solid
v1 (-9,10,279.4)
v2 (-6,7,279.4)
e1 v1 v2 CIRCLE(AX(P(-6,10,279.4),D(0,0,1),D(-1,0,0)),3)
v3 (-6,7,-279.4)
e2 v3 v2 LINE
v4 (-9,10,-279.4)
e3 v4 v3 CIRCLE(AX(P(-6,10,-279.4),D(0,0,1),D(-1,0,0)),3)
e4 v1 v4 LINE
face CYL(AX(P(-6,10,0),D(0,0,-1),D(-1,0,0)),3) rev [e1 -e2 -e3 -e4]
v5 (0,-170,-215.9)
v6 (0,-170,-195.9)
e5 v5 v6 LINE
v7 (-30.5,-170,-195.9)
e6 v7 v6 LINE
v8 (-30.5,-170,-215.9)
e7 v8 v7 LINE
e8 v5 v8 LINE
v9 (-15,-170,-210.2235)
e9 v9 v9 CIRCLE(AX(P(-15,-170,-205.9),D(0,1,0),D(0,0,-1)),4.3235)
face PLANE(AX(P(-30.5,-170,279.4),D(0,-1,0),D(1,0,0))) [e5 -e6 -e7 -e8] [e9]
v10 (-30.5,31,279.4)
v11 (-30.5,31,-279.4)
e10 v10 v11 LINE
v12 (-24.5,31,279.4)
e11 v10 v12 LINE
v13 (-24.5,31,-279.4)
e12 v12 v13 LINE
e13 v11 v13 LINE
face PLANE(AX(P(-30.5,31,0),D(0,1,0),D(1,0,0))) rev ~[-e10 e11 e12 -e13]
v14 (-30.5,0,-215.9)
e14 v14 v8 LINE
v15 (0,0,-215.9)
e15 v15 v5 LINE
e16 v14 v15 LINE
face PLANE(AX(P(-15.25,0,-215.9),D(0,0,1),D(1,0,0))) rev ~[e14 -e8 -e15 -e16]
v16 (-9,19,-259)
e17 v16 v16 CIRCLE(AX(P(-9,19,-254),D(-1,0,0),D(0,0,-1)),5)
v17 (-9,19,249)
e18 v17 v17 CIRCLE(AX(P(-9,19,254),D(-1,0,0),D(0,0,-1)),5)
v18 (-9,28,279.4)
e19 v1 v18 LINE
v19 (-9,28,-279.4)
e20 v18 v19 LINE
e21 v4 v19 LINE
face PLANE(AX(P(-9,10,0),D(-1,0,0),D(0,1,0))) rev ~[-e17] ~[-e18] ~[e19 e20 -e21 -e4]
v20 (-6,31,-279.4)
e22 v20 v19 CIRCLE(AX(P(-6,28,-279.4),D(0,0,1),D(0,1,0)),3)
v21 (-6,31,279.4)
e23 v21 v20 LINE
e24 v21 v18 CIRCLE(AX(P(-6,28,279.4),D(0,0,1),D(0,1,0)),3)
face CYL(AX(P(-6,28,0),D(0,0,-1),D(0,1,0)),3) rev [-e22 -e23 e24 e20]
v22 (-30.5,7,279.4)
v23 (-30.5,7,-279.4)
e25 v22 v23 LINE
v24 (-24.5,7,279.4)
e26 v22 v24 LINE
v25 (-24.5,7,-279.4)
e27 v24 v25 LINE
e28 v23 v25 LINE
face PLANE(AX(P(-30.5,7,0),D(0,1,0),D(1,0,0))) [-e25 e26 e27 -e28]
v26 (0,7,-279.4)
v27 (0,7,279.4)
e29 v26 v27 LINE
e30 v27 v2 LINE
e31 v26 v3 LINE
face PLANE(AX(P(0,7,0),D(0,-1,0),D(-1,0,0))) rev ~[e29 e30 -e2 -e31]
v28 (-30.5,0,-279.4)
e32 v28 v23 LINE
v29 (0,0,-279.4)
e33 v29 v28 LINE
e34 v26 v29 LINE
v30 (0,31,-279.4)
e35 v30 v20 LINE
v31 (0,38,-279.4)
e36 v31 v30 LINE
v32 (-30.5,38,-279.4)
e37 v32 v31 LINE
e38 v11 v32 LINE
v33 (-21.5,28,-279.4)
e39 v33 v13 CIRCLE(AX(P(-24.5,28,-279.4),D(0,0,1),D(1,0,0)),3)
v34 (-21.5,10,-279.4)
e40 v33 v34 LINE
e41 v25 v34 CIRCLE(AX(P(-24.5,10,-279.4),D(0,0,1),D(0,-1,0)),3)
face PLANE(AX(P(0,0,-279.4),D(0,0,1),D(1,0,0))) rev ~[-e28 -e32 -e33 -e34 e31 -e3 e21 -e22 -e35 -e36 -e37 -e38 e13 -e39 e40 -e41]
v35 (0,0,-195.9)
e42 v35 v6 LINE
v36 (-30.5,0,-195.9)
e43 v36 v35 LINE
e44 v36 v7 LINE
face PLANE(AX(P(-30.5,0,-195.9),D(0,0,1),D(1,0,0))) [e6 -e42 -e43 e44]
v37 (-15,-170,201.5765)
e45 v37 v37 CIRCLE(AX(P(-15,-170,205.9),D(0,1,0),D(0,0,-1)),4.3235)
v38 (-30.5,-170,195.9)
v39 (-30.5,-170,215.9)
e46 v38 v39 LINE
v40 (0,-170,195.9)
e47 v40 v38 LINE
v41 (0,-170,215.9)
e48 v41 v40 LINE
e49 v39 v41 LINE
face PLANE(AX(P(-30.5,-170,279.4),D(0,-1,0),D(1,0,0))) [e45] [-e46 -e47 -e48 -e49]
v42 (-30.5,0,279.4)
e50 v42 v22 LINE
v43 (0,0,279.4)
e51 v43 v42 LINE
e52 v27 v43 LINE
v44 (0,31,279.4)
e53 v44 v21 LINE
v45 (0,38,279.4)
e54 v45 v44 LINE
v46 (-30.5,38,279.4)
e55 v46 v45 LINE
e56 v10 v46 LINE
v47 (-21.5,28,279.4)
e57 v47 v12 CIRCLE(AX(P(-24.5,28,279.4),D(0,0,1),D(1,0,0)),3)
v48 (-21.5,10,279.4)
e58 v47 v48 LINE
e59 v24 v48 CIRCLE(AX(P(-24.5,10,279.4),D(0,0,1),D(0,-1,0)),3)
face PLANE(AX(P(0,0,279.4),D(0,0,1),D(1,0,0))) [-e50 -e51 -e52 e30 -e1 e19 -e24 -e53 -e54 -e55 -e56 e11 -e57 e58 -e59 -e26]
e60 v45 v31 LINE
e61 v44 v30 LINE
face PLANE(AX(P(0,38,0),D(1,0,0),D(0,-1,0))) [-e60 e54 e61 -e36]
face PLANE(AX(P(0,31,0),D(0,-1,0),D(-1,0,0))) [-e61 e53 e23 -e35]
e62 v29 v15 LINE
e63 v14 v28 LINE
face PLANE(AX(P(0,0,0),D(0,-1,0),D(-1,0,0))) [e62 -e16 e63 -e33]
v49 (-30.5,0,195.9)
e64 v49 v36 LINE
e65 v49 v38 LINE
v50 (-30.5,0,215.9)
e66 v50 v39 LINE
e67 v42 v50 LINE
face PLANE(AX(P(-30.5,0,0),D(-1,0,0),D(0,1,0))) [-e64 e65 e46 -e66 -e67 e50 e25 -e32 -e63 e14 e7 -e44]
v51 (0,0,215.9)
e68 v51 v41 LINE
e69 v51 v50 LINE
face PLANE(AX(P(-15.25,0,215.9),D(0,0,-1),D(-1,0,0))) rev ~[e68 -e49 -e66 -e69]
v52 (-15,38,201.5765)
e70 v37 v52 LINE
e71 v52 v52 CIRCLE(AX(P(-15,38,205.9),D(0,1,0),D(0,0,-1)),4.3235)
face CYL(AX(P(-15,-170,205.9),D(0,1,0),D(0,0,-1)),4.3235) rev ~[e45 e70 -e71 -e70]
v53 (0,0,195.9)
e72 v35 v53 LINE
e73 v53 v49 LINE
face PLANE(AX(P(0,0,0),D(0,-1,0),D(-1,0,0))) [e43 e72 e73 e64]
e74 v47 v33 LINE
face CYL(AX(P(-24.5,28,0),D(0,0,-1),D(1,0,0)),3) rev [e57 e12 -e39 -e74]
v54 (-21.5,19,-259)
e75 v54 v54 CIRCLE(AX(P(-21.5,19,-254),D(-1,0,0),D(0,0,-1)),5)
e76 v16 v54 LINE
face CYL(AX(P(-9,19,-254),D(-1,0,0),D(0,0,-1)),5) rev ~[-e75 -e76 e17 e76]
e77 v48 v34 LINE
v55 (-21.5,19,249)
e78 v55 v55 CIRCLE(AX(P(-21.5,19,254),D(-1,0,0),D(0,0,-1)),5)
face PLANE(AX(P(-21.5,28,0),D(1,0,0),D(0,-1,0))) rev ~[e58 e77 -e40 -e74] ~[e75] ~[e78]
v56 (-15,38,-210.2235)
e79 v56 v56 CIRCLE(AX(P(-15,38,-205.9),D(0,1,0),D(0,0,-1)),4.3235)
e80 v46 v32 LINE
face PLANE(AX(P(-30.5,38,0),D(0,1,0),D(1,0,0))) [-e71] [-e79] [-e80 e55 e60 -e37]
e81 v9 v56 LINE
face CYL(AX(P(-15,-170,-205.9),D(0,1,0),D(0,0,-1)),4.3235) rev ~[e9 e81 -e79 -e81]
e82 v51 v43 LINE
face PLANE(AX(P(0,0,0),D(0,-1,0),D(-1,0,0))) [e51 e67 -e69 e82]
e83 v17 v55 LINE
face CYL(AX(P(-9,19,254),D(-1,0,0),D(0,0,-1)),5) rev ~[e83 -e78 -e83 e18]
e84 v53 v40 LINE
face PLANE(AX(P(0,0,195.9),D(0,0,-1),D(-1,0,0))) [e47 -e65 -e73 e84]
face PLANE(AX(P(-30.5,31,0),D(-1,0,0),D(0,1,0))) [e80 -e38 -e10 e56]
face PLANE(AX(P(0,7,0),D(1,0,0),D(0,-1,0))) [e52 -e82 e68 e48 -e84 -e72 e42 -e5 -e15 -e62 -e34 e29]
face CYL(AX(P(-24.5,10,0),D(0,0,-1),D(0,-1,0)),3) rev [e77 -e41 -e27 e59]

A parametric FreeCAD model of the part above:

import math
import FreeCAD as App
import Part
import Sketcher
Q = App.Units.Quantity


def add_polygon(sketch, points):
    """Adds a closed chain of lines whose ends are joined by coincident constraints."""
    first, n = sketch.GeometryCount, len(points)
    for a, b in zip(points, points[1:] + points[:1]):
        sketch.addGeometry(Part.LineSegment(App.Vector(*a, 0), App.Vector(*b, 0)), False)
    for i in range(n):
        sketch.addConstraint(Sketcher.Constraint("Coincident", first + i, 2, first + (i + 1) % n, 1))

doc = App.newDocument("Part")
params = doc.addObject("Spreadsheet::Sheet", "Params")
for row, (alias, value) in enumerate([
    ("sketch1_radius", "3 mm"),
    ("sketch1_height", "7 mm"),
    ("sketch1_width", "30.5 mm"),
    ("pad1_length", "558.8 mm"),
    ("sketch2_diameter", "10 mm"),
    ("hole_diameter", "10 mm"),
    ("hole_depth", "25 mm"),
    ("sketch3_diameter", "10 mm"),
    ("hole2_diameter", "10 mm"),
    ("hole2_depth", "25 mm"),
    ("sketch4_height", "20 mm"),
    ("sketch4_width", "30.5 mm"),
    ("pad2_length", "170 mm"),
    ("hole3_diameter", "8.647 mm"),
    ("hole4_diameter", "8.647 mm"),
], start=1):
    params.set(f"A{row}", alias)
    params.set(f"B{row}", "=" + value)
    params.setAlias(f"B{row}", alias)

body = doc.addObject("PartDesign::Body", "Body")

sketch1 = doc.addObject("Sketcher::SketchObject", "Sketch")
body.addObject(sketch1)
sketch1.AttachmentSupport = (doc.XY_Plane, [""])
sketch1.MapMode = "FlatFace"
sketch1.addGeometry([
    Part.LineSegment(App.Vector(-30.5, 0, 0), App.Vector(0, 0, 0)),
    Part.LineSegment(App.Vector(0, 0, 0), App.Vector(0, 7, 0)),
    Part.LineSegment(App.Vector(0, 7, 0), App.Vector(-6, 7, 0)),
    Part.ArcOfCircle(Part.Circle(App.Vector(-6, 10, 0), App.Vector(0, 0, 1), 3), math.radians(180), math.radians(270)),
    Part.LineSegment(App.Vector(-9, 10, 0), App.Vector(-9, 28, 0)),
    Part.ArcOfCircle(Part.Circle(App.Vector(-6, 28, 0), App.Vector(0, 0, 1), 3), math.radians(90), math.radians(180)),
    Part.LineSegment(App.Vector(-6, 31, 0), App.Vector(0, 31, 0)),
    Part.LineSegment(App.Vector(0, 31, 0), App.Vector(0, 38, 0)),
    Part.LineSegment(App.Vector(0, 38, 0), App.Vector(-30.5, 38, 0)),
    Part.LineSegment(App.Vector(-30.5, 38, 0), App.Vector(-30.5, 31, 0)),
    Part.LineSegment(App.Vector(-30.5, 31, 0), App.Vector(-24.5, 31, 0)),
    Part.ArcOfCircle(Part.Circle(App.Vector(-24.5, 28, 0), App.Vector(0, 0, 1), 3), math.radians(0), math.radians(90)),
    Part.LineSegment(App.Vector(-21.5, 28, 0), App.Vector(-21.5, 10, 0)),
    Part.ArcOfCircle(Part.Circle(App.Vector(-24.5, 10, 0), App.Vector(0, 0, 1), 3), math.radians(-90), math.radians(0)),
    Part.LineSegment(App.Vector(-24.5, 7, 0), App.Vector(-30.5, 7, 0)),
    Part.LineSegment(App.Vector(-30.5, 7, 0), App.Vector(-30.5, 0, 0)),
], False)
sketch1.addConstraint([
    Sketcher.Constraint("Coincident", 0, 2, 1, 1),
    Sketcher.Constraint("Coincident", 1, 2, 2, 1),
    Sketcher.Constraint("Tangent", 2, 2, 3, 2),
    Sketcher.Constraint("Tangent", 3, 1, 4, 1),
    Sketcher.Constraint("Tangent", 4, 2, 5, 2),
    Sketcher.Constraint("Tangent", 5, 1, 6, 1),
    Sketcher.Constraint("Coincident", 6, 2, 7, 1),
    Sketcher.Constraint("Coincident", 7, 2, 8, 1),
    Sketcher.Constraint("Coincident", 8, 2, 9, 1),
    Sketcher.Constraint("Coincident", 9, 2, 10, 1),
    Sketcher.Constraint("Tangent", 10, 2, 11, 2),
    Sketcher.Constraint("Tangent", 11, 1, 12, 1),
    Sketcher.Constraint("Tangent", 12, 2, 13, 2),
    Sketcher.Constraint("Tangent", 13, 1, 14, 1),
    Sketcher.Constraint("Coincident", 14, 2, 15, 1),
    Sketcher.Constraint("Coincident", 15, 2, 0, 1),
    Sketcher.Constraint("Horizontal", 0),
    Sketcher.Constraint("Vertical", 1),
    Sketcher.Constraint("Horizontal", 2),
    Sketcher.Constraint("Vertical", 4),
    Sketcher.Constraint("Horizontal", 6),
    Sketcher.Constraint("Vertical", 7),
    Sketcher.Constraint("Horizontal", 8),
    Sketcher.Constraint("Vertical", 9),
    Sketcher.Constraint("Horizontal", 10),
    Sketcher.Constraint("Vertical", 12),
    Sketcher.Constraint("Horizontal", 14),
    Sketcher.Constraint("Vertical", 15),
    Sketcher.Constraint("Coincident", 0, 2, -1, 1),
    Sketcher.Constraint("Equal", 3, 5),
    Sketcher.Constraint("Equal", 5, 11),
    Sketcher.Constraint("Equal", 11, 13),
    Sketcher.Constraint("PointOnObject", 6, 2, -2),
    Sketcher.Constraint("Horizontal", 5, 3, 11, 3),
    Sketcher.Constraint("Horizontal", 3, 3, 13, 3),
    Sketcher.Constraint("Vertical", 9, 2, 14, 2),
    Sketcher.Constraint("Equal", 6, 10),
    Sketcher.Constraint("Equal", 1, 7),
    Sketcher.Constraint("Radius", 3, Q("3 mm")),
    Sketcher.Constraint("DistanceY", 1, 1, 1, 2, Q("7 mm")),
    Sketcher.Constraint("DistanceX", 0, 1, 0, 2, Q("30.5 mm")),
    Sketcher.Constraint("DistanceX", 3, 1, -1, 1, Q("9 mm")),
    Sketcher.Constraint("DistanceY", -1, 1, 7, 2, Q("38 mm")),
])
sketch1.setExpression("Constraints[38]", "Params.sketch1_radius")
sketch1.setExpression("Constraints[39]", "Params.sketch1_height")
sketch1.setExpression("Constraints[40]", "Params.sketch1_width")
pad1 = doc.addObject("PartDesign::Pad", "Pad")
body.addObject(pad1)
pad1.Profile = sketch1
pad1.setExpression("Length", "Params.pad1_length")
pad1.Midplane = True

sketch2 = doc.addObject("Sketcher::SketchObject", "Sketch001")
body.addObject(sketch2)
sketch2.AttachmentSupport = (doc.YZ_Plane, [""])
sketch2.MapMode = "FlatFace"
sketch2.AttachmentOffset = App.Placement(App.Vector(0, 0, -9), App.Rotation())
sketch2.addGeometry(Part.Circle(App.Vector(19, 254, 0), App.Vector(0, 0, 1), 5), False)
sketch2.addConstraint([
    Sketcher.Constraint("Diameter", 0, Q("10 mm")),
    Sketcher.Constraint("DistanceX", -1, 1, 0, 3, Q("19 mm")),
    Sketcher.Constraint("DistanceY", -1, 1, 0, 3, Q("254 mm")),
])
sketch2.setExpression("Constraints[0]", "Params.sketch2_diameter")
doc.recompute()
hole = doc.addObject("PartDesign::Hole", "Hole")
body.addObject(hole)
hole.Profile = sketch2
hole.ThreadType = "None"
hole.setExpression("Diameter", "Params.hole_diameter")
hole.DepthType = "Dimension"
hole.setExpression("Depth", "Params.hole_depth")
hole.DrillPoint = "Flat"

sketch3 = doc.addObject("Sketcher::SketchObject", "Sketch002")
body.addObject(sketch3)
sketch3.AttachmentSupport = (doc.YZ_Plane, [""])
sketch3.MapMode = "FlatFace"
sketch3.AttachmentOffset = App.Placement(App.Vector(0, 0, -9), App.Rotation())
sketch3.addGeometry(Part.Circle(App.Vector(19, -254, 0), App.Vector(0, 0, 1), 5), False)
sketch3.addConstraint([
    Sketcher.Constraint("Diameter", 0, Q("10 mm")),
    Sketcher.Constraint("DistanceX", -1, 1, 0, 3, Q("19 mm")),
    Sketcher.Constraint("DistanceY", 0, 3, -1, 1, Q("254 mm")),
])
sketch3.setExpression("Constraints[0]", "Params.sketch3_diameter")
doc.recompute()
hole2 = doc.addObject("PartDesign::Hole", "Hole001")
body.addObject(hole2)
hole2.Profile = sketch3
hole2.ThreadType = "None"
hole2.setExpression("Diameter", "Params.hole2_diameter")
hole2.DepthType = "Dimension"
hole2.setExpression("Depth", "Params.hole2_depth")
hole2.DrillPoint = "Angled"
hole2.DrillPointAngle = 118

sketch4 = doc.addObject("Sketcher::SketchObject", "Sketch003")
body.addObject(sketch4)
sketch4.AttachmentSupport = (doc.XZ_Plane, [""])
sketch4.MapMode = "FlatFace"
add_polygon(sketch4, [(0, 216), (-30, 216), (-30, 196), (0, 196)])
add_polygon(sketch4, [(0, -196), (-30, -196), (-30, -216), (0, -216)])
sketch4.addConstraint([
    Sketcher.Constraint("Horizontal", 0),
    Sketcher.Constraint("Vertical", 1),
    Sketcher.Constraint("Horizontal", 2),
    Sketcher.Constraint("Vertical", 3),
    Sketcher.Constraint("Horizontal", 4),
    Sketcher.Constraint("Vertical", 5),
    Sketcher.Constraint("Horizontal", 6),
    Sketcher.Constraint("Vertical", 7),
    Sketcher.Constraint("Symmetric", 3, 2, 6, 2, -1, 1),
    Sketcher.Constraint("Symmetric", 1, 2, 4, 2, -1),
    Sketcher.Constraint("PointOnObject", 2, 2, -2),
    Sketcher.Constraint("DistanceY", 1, 2, 1, 1, Q("20 mm")),
    Sketcher.Constraint("DistanceX", 0, 2, 0, 1, Q("30.5 mm")),
    Sketcher.Constraint("DistanceY", -1, 1, 0, 2, Q("215.9 mm")),
])
sketch4.setExpression("Constraints[19]", "Params.sketch4_height")
sketch4.setExpression("Constraints[20]", "Params.sketch4_width")
pad2 = doc.addObject("PartDesign::Pad", "Pad001")
body.addObject(pad2)
pad2.Profile = sketch4
pad2.setExpression("Length", "Params.pad2_length")

sketch5 = doc.addObject("Sketcher::SketchObject", "Sketch004")
body.addObject(sketch5)
sketch5.AttachmentSupport = (doc.XZ_Plane, [""])
sketch5.MapMode = "FlatFace"
sketch5.AttachmentOffset = App.Placement(App.Vector(0, 0, 170), App.Rotation())
sketch5.addGeometry(Part.Circle(App.Vector(-15, 205.9, 0), App.Vector(0, 0, 1), 4.3), False)
sketch5.addConstraint([
    Sketcher.Constraint("Diameter", 0, Q("8.647 mm")),
    Sketcher.Constraint("DistanceX", 0, 3, -1, 1, Q("15 mm")),
    Sketcher.Constraint("DistanceY", -1, 1, 0, 3, Q("205.9 mm")),
])
doc.recompute()
hole3 = doc.addObject("PartDesign::Hole", "Hole002")
body.addObject(hole3)
hole3.Profile = sketch5
hole3.ThreadType = "None"
hole3.setExpression("Diameter", "Params.hole3_diameter")
hole3.DepthType = "ThroughAll"

sketch6 = doc.addObject("Sketcher::SketchObject", "Sketch005")
body.addObject(sketch6)
sketch6.AttachmentSupport = (doc.XZ_Plane, [""])
sketch6.MapMode = "FlatFace"
sketch6.AttachmentOffset = App.Placement(App.Vector(0, 0, 170), App.Rotation())
sketch6.addGeometry(Part.Circle(App.Vector(-15, -205.9, 0), App.Vector(0, 0, 1), 4.3), False)
sketch6.addConstraint([
    Sketcher.Constraint("Diameter", 0, Q("8.647 mm")),
    Sketcher.Constraint("DistanceX", 0, 3, -1, 1, Q("15 mm")),
    Sketcher.Constraint("DistanceY", 0, 3, -1, 1, Q("205.9 mm")),
])
doc.recompute()
hole4 = doc.addObject("PartDesign::Hole", "Hole003")
body.addObject(hole4)
hole4.Profile = sketch6
hole4.ThreadType = "None"
hole4.setExpression("Diameter", "Params.hole4_diameter")
hole4.DepthType = "ThroughAll"

doc.recompute()
